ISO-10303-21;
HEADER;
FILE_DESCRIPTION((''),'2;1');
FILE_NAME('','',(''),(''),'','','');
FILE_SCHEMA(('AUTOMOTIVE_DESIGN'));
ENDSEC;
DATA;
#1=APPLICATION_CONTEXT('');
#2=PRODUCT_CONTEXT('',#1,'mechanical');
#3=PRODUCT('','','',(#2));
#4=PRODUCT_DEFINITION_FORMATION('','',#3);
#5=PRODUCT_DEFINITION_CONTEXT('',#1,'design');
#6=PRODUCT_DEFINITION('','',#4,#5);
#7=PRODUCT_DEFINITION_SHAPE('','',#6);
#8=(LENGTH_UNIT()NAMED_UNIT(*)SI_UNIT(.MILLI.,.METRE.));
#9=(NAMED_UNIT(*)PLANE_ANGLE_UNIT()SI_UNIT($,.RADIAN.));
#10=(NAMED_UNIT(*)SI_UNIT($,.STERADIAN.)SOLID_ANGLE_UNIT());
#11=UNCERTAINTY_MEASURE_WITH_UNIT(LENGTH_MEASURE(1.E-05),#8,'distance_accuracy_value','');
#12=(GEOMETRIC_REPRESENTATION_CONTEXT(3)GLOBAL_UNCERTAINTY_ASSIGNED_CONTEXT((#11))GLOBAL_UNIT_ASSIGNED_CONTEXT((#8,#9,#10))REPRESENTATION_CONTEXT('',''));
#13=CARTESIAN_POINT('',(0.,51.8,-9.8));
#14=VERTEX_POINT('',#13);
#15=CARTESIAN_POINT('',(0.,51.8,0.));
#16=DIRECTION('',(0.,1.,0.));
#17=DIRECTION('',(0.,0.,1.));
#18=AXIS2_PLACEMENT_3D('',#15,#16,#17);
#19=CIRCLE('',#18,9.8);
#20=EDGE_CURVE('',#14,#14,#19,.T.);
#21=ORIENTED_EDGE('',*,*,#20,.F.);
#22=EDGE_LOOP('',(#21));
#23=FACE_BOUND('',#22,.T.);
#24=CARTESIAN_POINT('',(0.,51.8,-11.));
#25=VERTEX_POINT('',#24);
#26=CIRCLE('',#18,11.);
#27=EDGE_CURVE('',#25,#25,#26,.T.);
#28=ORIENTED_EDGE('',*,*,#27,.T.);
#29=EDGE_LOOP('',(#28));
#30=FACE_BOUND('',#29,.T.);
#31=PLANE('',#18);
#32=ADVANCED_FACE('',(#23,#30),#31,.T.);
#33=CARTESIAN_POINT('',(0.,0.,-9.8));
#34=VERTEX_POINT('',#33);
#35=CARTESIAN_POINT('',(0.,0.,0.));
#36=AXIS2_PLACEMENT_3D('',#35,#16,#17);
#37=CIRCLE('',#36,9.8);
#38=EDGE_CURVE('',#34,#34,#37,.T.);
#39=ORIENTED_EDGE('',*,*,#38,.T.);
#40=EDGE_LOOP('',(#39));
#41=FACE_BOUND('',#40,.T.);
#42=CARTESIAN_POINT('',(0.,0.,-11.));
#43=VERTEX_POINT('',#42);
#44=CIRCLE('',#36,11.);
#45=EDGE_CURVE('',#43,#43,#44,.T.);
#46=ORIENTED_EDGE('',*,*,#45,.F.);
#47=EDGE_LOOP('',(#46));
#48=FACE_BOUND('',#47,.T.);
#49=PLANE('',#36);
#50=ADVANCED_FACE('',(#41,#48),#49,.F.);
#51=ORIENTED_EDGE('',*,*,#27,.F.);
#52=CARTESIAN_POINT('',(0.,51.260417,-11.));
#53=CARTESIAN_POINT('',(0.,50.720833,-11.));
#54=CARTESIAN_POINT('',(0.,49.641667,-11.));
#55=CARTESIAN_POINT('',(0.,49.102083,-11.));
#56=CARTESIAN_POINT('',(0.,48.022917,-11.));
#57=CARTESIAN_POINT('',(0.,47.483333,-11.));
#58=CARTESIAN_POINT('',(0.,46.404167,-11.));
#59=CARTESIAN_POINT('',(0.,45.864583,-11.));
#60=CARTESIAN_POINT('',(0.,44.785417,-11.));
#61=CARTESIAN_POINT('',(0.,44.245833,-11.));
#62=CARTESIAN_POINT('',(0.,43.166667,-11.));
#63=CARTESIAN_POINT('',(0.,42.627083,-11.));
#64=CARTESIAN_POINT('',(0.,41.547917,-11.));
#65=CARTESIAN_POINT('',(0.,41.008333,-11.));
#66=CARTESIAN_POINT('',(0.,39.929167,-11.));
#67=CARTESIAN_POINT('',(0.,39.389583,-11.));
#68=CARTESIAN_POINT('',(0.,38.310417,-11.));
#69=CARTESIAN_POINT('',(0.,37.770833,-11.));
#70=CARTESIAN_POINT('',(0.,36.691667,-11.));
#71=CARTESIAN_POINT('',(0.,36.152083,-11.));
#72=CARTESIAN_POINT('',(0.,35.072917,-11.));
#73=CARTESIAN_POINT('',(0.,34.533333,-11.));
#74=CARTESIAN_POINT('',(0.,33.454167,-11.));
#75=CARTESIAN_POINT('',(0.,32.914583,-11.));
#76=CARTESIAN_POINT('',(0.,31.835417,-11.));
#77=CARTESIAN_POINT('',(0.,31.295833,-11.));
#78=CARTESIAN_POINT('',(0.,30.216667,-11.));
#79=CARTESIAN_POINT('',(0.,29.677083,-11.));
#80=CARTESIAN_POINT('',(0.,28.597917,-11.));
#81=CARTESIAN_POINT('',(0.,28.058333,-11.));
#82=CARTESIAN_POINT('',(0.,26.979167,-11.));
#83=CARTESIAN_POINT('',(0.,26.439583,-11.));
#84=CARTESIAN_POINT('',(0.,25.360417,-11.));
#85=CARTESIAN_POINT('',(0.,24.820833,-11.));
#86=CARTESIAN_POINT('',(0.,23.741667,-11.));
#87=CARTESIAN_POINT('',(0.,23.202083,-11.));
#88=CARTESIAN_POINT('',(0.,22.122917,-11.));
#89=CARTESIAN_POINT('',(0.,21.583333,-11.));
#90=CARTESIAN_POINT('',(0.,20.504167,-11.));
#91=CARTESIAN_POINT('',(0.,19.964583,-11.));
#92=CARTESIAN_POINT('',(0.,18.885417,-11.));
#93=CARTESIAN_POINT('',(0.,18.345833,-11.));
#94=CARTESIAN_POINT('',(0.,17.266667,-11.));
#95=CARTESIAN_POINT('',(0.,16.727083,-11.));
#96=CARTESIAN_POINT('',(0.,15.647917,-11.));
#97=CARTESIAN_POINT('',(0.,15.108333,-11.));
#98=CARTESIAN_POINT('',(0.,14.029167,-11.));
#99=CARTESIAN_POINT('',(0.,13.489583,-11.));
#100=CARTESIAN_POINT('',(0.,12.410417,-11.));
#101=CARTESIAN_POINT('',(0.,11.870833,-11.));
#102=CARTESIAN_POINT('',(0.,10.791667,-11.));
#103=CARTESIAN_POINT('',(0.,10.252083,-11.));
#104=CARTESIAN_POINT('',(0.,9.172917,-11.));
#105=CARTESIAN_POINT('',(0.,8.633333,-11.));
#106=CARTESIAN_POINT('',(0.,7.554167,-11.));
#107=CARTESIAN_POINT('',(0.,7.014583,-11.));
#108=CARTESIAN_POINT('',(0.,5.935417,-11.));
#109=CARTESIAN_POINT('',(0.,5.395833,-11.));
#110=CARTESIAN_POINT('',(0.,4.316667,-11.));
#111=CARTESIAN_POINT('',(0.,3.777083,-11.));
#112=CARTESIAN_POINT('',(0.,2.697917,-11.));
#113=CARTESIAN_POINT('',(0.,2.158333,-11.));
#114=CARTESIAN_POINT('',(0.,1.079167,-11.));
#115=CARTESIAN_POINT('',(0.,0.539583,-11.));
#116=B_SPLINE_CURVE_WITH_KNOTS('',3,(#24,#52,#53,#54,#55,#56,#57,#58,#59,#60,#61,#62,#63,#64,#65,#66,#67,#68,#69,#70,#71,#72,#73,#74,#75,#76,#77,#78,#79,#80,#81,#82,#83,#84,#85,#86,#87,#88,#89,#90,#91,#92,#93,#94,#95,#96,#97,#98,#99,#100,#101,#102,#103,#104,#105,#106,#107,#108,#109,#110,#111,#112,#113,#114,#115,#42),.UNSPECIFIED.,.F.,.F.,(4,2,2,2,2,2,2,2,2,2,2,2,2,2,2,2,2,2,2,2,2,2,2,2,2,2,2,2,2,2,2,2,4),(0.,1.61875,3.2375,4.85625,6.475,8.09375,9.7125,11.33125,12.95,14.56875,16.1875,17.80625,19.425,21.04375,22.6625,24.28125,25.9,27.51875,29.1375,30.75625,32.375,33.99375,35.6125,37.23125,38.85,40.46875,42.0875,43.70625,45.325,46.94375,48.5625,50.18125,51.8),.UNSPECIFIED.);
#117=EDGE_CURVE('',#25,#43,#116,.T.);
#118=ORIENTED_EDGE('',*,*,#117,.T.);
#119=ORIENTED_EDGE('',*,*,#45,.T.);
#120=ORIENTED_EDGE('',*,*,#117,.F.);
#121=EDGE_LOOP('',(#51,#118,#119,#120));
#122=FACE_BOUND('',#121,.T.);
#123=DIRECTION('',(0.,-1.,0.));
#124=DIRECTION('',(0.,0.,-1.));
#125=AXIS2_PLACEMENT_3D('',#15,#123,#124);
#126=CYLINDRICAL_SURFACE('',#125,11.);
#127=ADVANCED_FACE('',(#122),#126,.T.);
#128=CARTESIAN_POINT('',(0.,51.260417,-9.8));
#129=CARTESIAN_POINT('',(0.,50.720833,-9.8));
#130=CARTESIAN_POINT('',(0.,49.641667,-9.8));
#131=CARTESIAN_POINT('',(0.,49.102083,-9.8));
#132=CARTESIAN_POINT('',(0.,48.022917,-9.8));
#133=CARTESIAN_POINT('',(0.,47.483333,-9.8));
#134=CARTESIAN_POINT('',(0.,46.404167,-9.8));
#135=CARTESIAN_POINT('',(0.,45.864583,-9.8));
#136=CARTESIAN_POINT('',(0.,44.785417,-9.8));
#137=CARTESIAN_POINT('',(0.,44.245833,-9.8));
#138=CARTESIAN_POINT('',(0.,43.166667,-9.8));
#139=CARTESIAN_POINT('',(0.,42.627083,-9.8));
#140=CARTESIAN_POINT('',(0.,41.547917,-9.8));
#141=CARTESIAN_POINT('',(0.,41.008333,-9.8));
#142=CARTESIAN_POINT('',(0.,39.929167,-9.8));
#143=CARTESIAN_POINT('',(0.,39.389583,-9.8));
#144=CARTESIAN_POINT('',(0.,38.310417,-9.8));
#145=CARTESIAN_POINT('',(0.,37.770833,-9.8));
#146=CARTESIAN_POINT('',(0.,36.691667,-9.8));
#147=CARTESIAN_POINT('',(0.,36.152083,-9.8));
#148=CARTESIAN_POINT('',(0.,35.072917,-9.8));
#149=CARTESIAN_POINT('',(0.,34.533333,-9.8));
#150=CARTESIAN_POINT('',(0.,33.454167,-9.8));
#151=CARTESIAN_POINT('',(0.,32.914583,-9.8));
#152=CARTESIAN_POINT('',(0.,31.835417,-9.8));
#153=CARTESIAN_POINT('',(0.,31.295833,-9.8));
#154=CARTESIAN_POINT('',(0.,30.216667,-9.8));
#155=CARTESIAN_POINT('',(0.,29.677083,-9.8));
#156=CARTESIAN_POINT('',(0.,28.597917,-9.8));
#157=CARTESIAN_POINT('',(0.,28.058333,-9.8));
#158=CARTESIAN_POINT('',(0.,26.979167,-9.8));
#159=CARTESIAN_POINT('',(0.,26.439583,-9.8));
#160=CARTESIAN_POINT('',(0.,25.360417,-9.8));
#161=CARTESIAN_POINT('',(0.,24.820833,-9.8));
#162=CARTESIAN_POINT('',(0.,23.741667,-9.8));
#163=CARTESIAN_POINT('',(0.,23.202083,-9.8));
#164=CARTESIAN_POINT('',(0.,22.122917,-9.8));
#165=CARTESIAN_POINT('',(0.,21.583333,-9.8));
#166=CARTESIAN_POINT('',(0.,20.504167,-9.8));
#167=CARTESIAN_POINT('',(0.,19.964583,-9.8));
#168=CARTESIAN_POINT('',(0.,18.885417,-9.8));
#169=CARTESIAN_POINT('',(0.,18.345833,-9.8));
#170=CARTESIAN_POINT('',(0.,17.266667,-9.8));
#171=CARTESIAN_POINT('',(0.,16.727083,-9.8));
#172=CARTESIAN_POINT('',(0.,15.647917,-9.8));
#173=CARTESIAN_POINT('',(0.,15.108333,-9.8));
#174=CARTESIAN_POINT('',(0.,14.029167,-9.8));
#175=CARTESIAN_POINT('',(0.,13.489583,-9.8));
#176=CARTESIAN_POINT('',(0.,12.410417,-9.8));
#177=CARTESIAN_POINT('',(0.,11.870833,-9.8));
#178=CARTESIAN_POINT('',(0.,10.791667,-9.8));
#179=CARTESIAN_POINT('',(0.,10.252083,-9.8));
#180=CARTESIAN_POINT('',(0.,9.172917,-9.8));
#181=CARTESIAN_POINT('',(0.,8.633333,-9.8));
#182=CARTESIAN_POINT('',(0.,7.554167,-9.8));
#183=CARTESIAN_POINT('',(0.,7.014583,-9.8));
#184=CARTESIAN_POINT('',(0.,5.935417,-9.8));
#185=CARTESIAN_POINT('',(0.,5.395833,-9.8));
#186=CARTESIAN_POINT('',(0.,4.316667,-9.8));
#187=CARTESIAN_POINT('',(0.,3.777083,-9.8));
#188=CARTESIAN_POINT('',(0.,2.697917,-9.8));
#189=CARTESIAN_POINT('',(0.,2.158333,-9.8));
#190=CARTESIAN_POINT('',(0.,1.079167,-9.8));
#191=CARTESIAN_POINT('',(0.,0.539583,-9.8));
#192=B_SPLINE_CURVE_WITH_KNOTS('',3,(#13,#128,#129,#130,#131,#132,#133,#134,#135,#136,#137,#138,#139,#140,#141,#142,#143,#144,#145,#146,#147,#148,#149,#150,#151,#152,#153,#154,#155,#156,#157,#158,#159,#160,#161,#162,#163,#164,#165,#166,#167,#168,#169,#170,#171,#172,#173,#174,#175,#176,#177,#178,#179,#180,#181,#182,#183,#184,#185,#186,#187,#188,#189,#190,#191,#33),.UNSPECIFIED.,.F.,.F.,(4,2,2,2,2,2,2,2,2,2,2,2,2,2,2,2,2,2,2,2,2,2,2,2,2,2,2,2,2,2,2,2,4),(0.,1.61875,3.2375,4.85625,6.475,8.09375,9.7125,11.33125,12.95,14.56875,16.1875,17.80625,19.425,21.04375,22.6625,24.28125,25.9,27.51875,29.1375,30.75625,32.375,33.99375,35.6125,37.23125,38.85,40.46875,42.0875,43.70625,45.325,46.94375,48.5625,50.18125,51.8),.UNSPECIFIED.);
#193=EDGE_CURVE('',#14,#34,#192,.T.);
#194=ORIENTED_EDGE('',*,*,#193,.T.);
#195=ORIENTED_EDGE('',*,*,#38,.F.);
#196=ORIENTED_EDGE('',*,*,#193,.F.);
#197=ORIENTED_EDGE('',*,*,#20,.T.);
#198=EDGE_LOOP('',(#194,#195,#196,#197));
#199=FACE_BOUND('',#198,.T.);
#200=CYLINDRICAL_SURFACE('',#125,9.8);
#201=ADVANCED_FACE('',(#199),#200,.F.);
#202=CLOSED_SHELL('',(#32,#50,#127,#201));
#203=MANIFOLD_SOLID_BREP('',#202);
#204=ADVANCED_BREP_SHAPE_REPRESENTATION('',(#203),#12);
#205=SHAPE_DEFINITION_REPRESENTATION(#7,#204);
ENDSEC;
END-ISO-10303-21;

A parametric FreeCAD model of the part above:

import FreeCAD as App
import Part
import Sketcher
from FreeCAD import Vector

doc = App.newDocument("Part")
body = doc.addObject("PartDesign::Body", "Body")

# Sketch on XZ plane
sketch1 = body.newObject("Sketcher::SketchObject", "Sketch")
sketch1.AttachmentSupport = (doc.getObject("XZ_Plane"), [""])
sketch1.MapMode = "FlatFace"
sketch1.addGeometry([
    Part.Circle(Vector(0, 0, 0), Vector(0, 0, 1), 11),
    Part.Circle(Vector(0, 0, 0), Vector(0, 0, 1), 10),
], False)
sketch1.addConstraint([
    Sketcher.Constraint("Coincident", 0, 3, -1, 1),
    Sketcher.Constraint("Coincident", 1, 3, -1, 1),
    Sketcher.Constraint("Diameter", 0, 22.0),
    Sketcher.Constraint("Diameter", 1, 19.6),
])
pad1 = body.newObject("PartDesign::Pad", "Pad")
pad1.Profile = sketch1
pad1.Length = 51.8
pad1.Reversed = True

doc.recompute()
